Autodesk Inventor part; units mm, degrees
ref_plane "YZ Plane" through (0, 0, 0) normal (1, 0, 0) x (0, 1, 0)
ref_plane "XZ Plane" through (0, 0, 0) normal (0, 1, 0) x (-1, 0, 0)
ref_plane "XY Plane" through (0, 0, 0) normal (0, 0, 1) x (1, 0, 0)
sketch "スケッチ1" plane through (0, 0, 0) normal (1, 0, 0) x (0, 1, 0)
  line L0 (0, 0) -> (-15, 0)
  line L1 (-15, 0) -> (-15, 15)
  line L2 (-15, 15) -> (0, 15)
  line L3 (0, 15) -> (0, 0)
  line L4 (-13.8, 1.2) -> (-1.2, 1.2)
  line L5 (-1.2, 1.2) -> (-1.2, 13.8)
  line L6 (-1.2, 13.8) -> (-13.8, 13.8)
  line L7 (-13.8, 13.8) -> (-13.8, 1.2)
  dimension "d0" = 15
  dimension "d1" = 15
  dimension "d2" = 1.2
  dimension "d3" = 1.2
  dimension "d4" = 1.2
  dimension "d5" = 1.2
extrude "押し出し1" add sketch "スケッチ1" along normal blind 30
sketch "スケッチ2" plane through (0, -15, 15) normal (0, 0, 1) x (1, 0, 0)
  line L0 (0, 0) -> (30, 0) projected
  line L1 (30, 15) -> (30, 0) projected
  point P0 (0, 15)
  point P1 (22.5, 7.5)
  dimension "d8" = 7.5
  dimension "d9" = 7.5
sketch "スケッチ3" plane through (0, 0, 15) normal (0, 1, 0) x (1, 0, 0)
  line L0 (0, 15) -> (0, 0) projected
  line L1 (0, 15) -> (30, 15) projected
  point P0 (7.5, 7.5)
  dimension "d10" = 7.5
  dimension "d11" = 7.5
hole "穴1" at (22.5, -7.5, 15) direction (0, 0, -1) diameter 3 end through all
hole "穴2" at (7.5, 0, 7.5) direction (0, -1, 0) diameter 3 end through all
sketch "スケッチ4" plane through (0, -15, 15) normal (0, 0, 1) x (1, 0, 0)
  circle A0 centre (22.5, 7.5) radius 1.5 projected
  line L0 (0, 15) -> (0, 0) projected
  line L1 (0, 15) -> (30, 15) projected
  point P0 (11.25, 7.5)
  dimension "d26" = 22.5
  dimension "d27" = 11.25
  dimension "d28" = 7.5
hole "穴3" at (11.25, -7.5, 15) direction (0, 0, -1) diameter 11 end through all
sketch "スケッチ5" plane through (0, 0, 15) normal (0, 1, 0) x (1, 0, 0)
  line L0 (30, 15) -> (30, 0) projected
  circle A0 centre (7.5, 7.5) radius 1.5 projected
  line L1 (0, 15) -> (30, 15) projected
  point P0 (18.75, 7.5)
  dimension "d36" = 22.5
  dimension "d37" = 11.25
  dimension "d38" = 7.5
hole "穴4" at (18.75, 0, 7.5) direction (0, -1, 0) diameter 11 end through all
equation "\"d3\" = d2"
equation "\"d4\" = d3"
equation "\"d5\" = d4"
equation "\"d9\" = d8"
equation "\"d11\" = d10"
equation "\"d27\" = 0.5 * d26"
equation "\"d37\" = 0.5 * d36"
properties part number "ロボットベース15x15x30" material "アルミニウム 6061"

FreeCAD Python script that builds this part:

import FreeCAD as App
import Part
import Sketcher
from FreeCAD import Vector
Q = App.Units.Quantity

doc = App.newDocument("Part")
params = doc.addObject("Spreadsheet::Sheet", "Params")
for row, (alias, value) in enumerate([
    ("sketch1_width", "15 mm"),
    ("pad1_length", "30 mm"),
    ("sketch2_diameter", "3 mm"),
    ("hole_diameter", "3 mm"),
    ("sketch3_diameter", "3 mm"),
    ("hole2_diameter", "3 mm"),
    ("sketch4_diameter", "11 mm"),
    ("hole3_diameter", "11 mm"),
    ("sketch5_diameter", "11 mm"),
    ("hole4_diameter", "11 mm"),
], start=1):
    params.set(f"A{row}", alias)
    params.set(f"B{row}", "=" + value)
    params.setAlias(f"B{row}", alias)

body = doc.addObject("PartDesign::Body", "Body")

# Sketch on YZ plane
sketch1 = doc.addObject("Sketcher::SketchObject", "Sketch")
body.addObject(sketch1)
sketch1.AttachmentSupport = (doc.YZ_Plane, [""])
sketch1.MapMode = "FlatFace"
sketch1.addGeometry([
    Part.LineSegment(Vector(-15, 0, 0), Vector(0, 0, 0)),  # 0
    Part.LineSegment(Vector(0, 0, 0), Vector(0, 15, 0)),  # 1
    Part.LineSegment(Vector(0, 15, 0), Vector(-15, 15, 0)),  # 2
    Part.LineSegment(Vector(-15, 15, 0), Vector(-15, 0, 0)),  # 3
    Part.LineSegment(Vector(-1.2, 1.2, 0), Vector(-13.8, 1.2, 0)),  # 4
    Part.LineSegment(Vector(-13.8, 1.2, 0), Vector(-13.8, 13.8, 0)),  # 5
    Part.LineSegment(Vector(-13.8, 13.8, 0), Vector(-1.2, 13.8, 0)),  # 6
    Part.LineSegment(Vector(-1.2, 13.8, 0), Vector(-1.2, 1.2, 0)),  # 7
], False)
sketch1.addConstraint([
    Sketcher.Constraint("Coincident", 0, 2, 1, 1),
    Sketcher.Constraint("Coincident", 1, 2, 2, 1),
    Sketcher.Constraint("Coincident", 2, 2, 3, 1),
    Sketcher.Constraint("Coincident", 3, 2, 0, 1),
    Sketcher.Constraint("Coincident", 4, 2, 5, 1),
    Sketcher.Constraint("Coincident", 5, 2, 6, 1),
    Sketcher.Constraint("Coincident", 6, 2, 7, 1),
    Sketcher.Constraint("Coincident", 7, 2, 4, 1),
    Sketcher.Constraint("Horizontal", 0),
    Sketcher.Constraint("Vertical", 1),
    Sketcher.Constraint("Horizontal", 2),
    Sketcher.Constraint("Vertical", 3),
    Sketcher.Constraint("Horizontal", 4),
    Sketcher.Constraint("Vertical", 5),
    Sketcher.Constraint("Horizontal", 6),
    Sketcher.Constraint("Vertical", 7),
    Sketcher.Constraint("Coincident", 0, 2, -1, 1),
    Sketcher.Constraint("Equal", 2, 1),
    Sketcher.Constraint("Equal", 6, 5),
    Sketcher.Constraint("DistanceX", 0, 1, 0, 2, Q("15 mm")),
    Sketcher.Constraint("DistanceY", -1, 1, 4, 2, Q("1.2 mm")),
    Sketcher.Constraint("DistanceX", 6, 2, -1, 1, Q("1.2 mm")),
    Sketcher.Constraint("DistanceX", 3, 2, 4, 2, Q("1.2 mm")),
])
sketch1.setExpression("Constraints[19]", "Params.sketch1_width")
pad1 = doc.addObject("PartDesign::Pad", "Pad")
body.addObject(pad1)
pad1.Profile = sketch1
pad1.setExpression("Length", "Params.pad1_length")

# Sketch on XY plane
sketch2 = doc.addObject("Sketcher::SketchObject", "Sketch001")
body.addObject(sketch2)
sketch2.AttachmentSupport = (doc.XY_Plane, [""])
sketch2.MapMode = "FlatFace"
sketch2.AttachmentOffset = App.Placement(Vector(0, 0, 15), App.Rotation())
sketch2.addGeometry(Part.Circle(Vector(22.5, -7.5, 0), Vector(0, 0, 1), 1.5), False)
sketch2.addConstraint([
    Sketcher.Constraint("Diameter", 0, Q("3 mm")),
    Sketcher.Constraint("DistanceX", -1, 1, 0, 3, Q("22.5 mm")),
    Sketcher.Constraint("DistanceY", 0, 3, -1, 1, Q("7.5 mm")),
])
sketch2.setExpression("Constraints[0]", "Params.sketch2_diameter")
doc.recompute()
hole = doc.addObject("PartDesign::Hole", "Hole")
body.addObject(hole)
hole.Profile = sketch2
hole.ThreadType = "None"
hole.setExpression("Diameter", "Params.hole_diameter")
hole.DepthType = "ThroughAll"

# Sketch on XZ plane
sketch3 = doc.addObject("Sketcher::SketchObject", "Sketch002")
body.addObject(sketch3)
sketch3.AttachmentSupport = (doc.XZ_Plane, [""])
sketch3.MapMode = "FlatFace"
sketch3.addGeometry(Part.Circle(Vector(7.5, 7.5, 0), Vector(0, 0, 1), 1.5), False)
sketch3.addConstraint([
    Sketcher.Constraint("Diameter", 0, Q("3 mm")),
    Sketcher.Constraint("DistanceX", -1, 1, 0, 3, Q("7.5 mm")),
    Sketcher.Constraint("DistanceY", -1, 1, 0, 3, Q("7.5 mm")),
])
sketch3.setExpression("Constraints[0]", "Params.sketch3_diameter")
doc.recompute()
hole2 = doc.addObject("PartDesign::Hole", "Hole001")
body.addObject(hole2)
hole2.Profile = sketch3
hole2.ThreadType = "None"
hole2.setExpression("Diameter", "Params.hole2_diameter")
hole2.DepthType = "ThroughAll"
hole2.Reversed = True

# Sketch on XY plane
sketch4 = doc.addObject("Sketcher::SketchObject", "Sketch003")
body.addObject(sketch4)
sketch4.AttachmentSupport = (doc.XY_Plane, [""])
sketch4.MapMode = "FlatFace"
sketch4.AttachmentOffset = App.Placement(Vector(0, 0, 15), App.Rotation())
sketch4.addGeometry(Part.Circle(Vector(11.25, -7.5, 0), Vector(0, 0, 1), 5.5), False)
sketch4.addConstraint([
    Sketcher.Constraint("Diameter", 0, Q("11 mm")),
    Sketcher.Constraint("DistanceY", 0, 3, -1, 1, Q("7.5 mm")),
    Sketcher.Constraint("DistanceX", -1, 1, 0, 3, Q("11.25 mm")),
])
sketch4.setExpression("Constraints[0]", "Params.sketch4_diameter")
doc.recompute()
hole3 = doc.addObject("PartDesign::Hole", "Hole002")
body.addObject(hole3)
hole3.Profile = sketch4
hole3.ThreadType = "None"
hole3.setExpression("Diameter", "Params.hole3_diameter")
hole3.DepthType = "ThroughAll"

# Sketch on XZ plane
sketch5 = doc.addObject("Sketcher::SketchObject", "Sketch004")
body.addObject(sketch5)
sketch5.AttachmentSupport = (doc.XZ_Plane, [""])
sketch5.MapMode = "FlatFace"
sketch5.addGeometry(Part.Circle(Vector(18.75, 7.5, 0), Vector(0, 0, 1), 5.5), False)
sketch5.addConstraint([
    Sketcher.Constraint("Diameter", 0, Q("11 mm")),
    Sketcher.Constraint("DistanceY", -1, 1, 0, 3, Q("7.5 mm")),
    Sketcher.Constraint("DistanceX", -1, 1, 0, 3, Q("18.75 mm")),
])
sketch5.setExpression("Constraints[0]", "Params.sketch5_diameter")
doc.recompute()
hole4 = doc.addObject("PartDesign::Hole", "Hole003")
body.addObject(hole4)
hole4.Profile = sketch5
hole4.ThreadType = "None"
hole4.setExpression("Diameter", "Params.hole4_diameter")
hole4.DepthType = "ThroughAll"
hole4.Reversed = True

doc.recompute()
